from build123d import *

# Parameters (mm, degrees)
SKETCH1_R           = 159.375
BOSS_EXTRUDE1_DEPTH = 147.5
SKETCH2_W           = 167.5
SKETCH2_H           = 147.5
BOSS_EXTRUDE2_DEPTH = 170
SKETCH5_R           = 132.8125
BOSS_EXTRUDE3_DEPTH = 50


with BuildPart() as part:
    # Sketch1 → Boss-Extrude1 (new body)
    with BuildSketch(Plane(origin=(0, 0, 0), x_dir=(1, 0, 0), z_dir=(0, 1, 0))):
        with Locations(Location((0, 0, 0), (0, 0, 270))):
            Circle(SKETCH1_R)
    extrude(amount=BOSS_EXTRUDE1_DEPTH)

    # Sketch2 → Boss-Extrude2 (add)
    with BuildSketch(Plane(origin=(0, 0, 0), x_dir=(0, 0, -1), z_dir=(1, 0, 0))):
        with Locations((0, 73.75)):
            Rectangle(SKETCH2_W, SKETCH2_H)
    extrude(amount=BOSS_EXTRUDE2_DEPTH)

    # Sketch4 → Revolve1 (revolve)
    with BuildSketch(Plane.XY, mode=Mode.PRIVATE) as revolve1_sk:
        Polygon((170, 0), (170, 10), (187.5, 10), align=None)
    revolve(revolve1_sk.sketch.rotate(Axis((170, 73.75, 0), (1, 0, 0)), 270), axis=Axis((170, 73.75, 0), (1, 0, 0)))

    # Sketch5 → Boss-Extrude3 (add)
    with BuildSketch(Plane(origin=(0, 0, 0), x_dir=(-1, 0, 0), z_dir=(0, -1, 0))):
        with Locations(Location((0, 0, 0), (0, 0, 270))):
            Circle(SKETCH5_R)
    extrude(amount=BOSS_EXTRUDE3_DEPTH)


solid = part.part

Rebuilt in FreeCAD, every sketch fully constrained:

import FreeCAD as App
import Part
import Sketcher

V = App.Vector


def add_polygon(sketch, points):
    """Adds a closed chain of lines whose ends are joined by coincident constraints."""
    first, n = sketch.GeometryCount, len(points)
    for a, b in zip(points, points[1:] + points[:1]):
        sketch.addGeometry(Part.LineSegment(App.Vector(*a, 0), App.Vector(*b, 0)), False)
    for i in range(n):
        sketch.addConstraint(Sketcher.Constraint("Coincident", first + i, 2, first + (i + 1) % n, 1))

doc = App.newDocument("Part")
body = doc.addObject("PartDesign::Body", "Body")

sketch1 = body.newObject("Sketcher::SketchObject", "Sketch")
sketch1.AttachmentSupport = (doc.getObject("XZ_Plane"), [""])
sketch1.MapMode = "FlatFace"
sketch1.addGeometry(Part.Circle(V(0, 0, 0), V(0, 0, 1), 159.375), False)
sketch1.addConstraint([
    Sketcher.Constraint("Coincident", 0, 3, -1, 1),
    Sketcher.Constraint("Diameter", 0, 318.75),
])
pad1 = body.newObject("PartDesign::Pad", "Pad")
pad1.Profile = sketch1
pad1.Length = 147.5
pad1.Reversed = True

sketch2 = body.newObject("Sketcher::SketchObject", "Sketch001")
sketch2.AttachmentSupport = (doc.getObject("YZ_Plane"), [""])
sketch2.MapMode = "FlatFace"
add_polygon(sketch2, [(147.5, 83.75), (0, 83.75), (0, -83.75), (147.5, -83.75)])
sketch2.addConstraint([
    Sketcher.Constraint("Horizontal", 0),
    Sketcher.Constraint("Vertical", 1),
    Sketcher.Constraint("Horizontal", 2),
    Sketcher.Constraint("Vertical", 3),
    Sketcher.Constraint("Symmetric", 0, 2, 1, 2, -1, 1),
    Sketcher.Constraint("DistanceX", 0, 2, 0, 1, 147.5),
    Sketcher.Constraint("DistanceY", 1, 2, 1, 1, 167.5),
])
pad2 = body.newObject("PartDesign::Pad", "Pad001")
pad2.Profile = sketch2
pad2.Length = 170

sketch3 = body.newObject("Sketcher::SketchObject", "Sketch002")
sketch3.AttachmentSupport = (doc.getObject("XY_Plane"), [""])
sketch3.MapMode = "FlatFace"
add_polygon(sketch3, [(170, 10), (170, 0), (187.5, 10)])
sketch3.addGeometry(Part.LineSegment(V(170, 73.75, 0), V(187.5, 73.75, 0)), True)
sketch3.addConstraint([
    Sketcher.Constraint("Vertical", 0),
    Sketcher.Constraint("Horizontal", 2),
    Sketcher.Constraint("Horizontal", 3),
    Sketcher.Constraint("PointOnObject", 0, 2, -1),
    Sketcher.Constraint("Vertical", 2, 2, 3, 1),
    Sketcher.Constraint("Vertical", 1, 2, 3, 2),
    Sketcher.Constraint("DistanceY", 0, 2, 0, 1, 10.0),
    Sketcher.Constraint("DistanceX", 2, 2, 2, 1, 17.5),
    Sketcher.Constraint("DistanceX", -1, 1, 0, 2, 170.0),
    Sketcher.Constraint("DistanceY", -1, 1, 3, 1, 73.75),
])
revolution = body.newObject("PartDesign::Revolution", "Revolution")
revolution.Profile = sketch3
revolution.ReferenceAxis = (sketch3, ["Axis0"])
revolution.Angle = 360

sketch4 = body.newObject("Sketcher::SketchObject", "Sketch003")
sketch4.AttachmentSupport = (doc.getObject("XZ_Plane"), [""])
sketch4.MapMode = "FlatFace"
sketch4.addGeometry(Part.Circle(V(0, 0, 0), V(0, 0, 1), 132.8125), False)
sketch4.addConstraint([
    Sketcher.Constraint("Coincident", 0, 3, -1, 1),
    Sketcher.Constraint("Diameter", 0, 265.625),
])
pad3 = body.newObject("PartDesign::Pad", "Pad002")
pad3.Profile = sketch4
pad3.Length = 50

doc.recompute()
